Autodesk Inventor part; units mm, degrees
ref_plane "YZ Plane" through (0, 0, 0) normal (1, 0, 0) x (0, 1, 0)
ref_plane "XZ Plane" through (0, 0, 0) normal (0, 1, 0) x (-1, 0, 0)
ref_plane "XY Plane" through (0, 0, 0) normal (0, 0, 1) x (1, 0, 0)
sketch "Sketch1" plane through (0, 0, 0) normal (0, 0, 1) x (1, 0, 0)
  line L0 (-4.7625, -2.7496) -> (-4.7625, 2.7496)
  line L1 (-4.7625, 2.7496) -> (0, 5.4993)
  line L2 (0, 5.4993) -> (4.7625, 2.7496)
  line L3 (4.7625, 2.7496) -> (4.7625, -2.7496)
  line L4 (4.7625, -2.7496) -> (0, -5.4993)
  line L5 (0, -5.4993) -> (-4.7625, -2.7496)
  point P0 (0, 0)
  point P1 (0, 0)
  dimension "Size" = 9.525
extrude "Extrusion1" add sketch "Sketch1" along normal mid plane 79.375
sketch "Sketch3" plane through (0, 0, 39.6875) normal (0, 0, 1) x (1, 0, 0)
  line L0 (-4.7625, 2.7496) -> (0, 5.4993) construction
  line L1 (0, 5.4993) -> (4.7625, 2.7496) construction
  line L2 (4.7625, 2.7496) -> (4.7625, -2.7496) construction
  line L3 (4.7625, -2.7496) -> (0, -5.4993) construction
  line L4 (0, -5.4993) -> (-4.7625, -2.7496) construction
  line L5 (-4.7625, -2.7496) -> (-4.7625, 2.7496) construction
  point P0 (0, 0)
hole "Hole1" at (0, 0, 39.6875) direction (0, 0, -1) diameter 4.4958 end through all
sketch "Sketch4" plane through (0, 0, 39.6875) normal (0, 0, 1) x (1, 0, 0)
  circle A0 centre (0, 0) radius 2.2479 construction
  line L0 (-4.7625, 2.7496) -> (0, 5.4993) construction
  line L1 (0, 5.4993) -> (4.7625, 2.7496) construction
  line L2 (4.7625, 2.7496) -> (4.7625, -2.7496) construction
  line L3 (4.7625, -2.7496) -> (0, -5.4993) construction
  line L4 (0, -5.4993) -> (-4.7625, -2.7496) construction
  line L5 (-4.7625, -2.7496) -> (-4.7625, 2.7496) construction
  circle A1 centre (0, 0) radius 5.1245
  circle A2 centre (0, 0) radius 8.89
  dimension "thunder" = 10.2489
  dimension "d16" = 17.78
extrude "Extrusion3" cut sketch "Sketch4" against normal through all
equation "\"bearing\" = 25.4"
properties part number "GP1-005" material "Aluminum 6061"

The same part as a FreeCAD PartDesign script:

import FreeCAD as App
import Part
import Sketcher
Q = App.Units.Quantity

doc = App.newDocument("Part")
body = doc.addObject("PartDesign::Body", "Body")

sketch1 = body.newObject("Sketcher::SketchObject", "Sketch")
sketch1.AttachmentSupport = (doc.getObject("XY_Plane"), [""])
sketch1.MapMode = "FlatFace"
sketch1.addGeometry(Part.LineSegment(App.Vector(-4.7625, 2.7496, 0), App.Vector(-4.7625, -2.7496, 0)), False)
sketch1.addGeometry(Part.LineSegment(App.Vector(-4.7625, -2.7496, 0), App.Vector(0, -5.4993, 0)), False)
sketch1.addGeometry(Part.LineSegment(App.Vector(0, -5.4993, 0), App.Vector(4.7625, -2.7496, 0)), False)
sketch1.addGeometry(Part.LineSegment(App.Vector(4.7625, -2.7496, 0), App.Vector(4.7625, 2.7496, 0)), False)
sketch1.addGeometry(Part.LineSegment(App.Vector(4.7625, 2.7496, 0), App.Vector(0, 5.4993, 0)), False)
sketch1.addGeometry(Part.LineSegment(App.Vector(0, 5.4993, 0), App.Vector(-4.7625, 2.7496, 0)), False)
sketch1.addConstraint(Sketcher.Constraint("Coincident", 0, 2, 1, 1))
sketch1.addConstraint(Sketcher.Constraint("Coincident", 1, 2, 2, 1))
sketch1.addConstraint(Sketcher.Constraint("Coincident", 2, 2, 3, 1))
sketch1.addConstraint(Sketcher.Constraint("Coincident", 3, 2, 4, 1))
sketch1.addConstraint(Sketcher.Constraint("Coincident", 4, 2, 5, 1))
sketch1.addConstraint(Sketcher.Constraint("Coincident", 5, 2, 0, 1))
sketch1.addConstraint(Sketcher.Constraint("Vertical", 0))
sketch1.addConstraint(Sketcher.Constraint("Vertical", 3))
sketch1.addConstraint(Sketcher.Constraint("Symmetric", 0, 2, 3, 2, -1, 1))
sketch1.addConstraint(Sketcher.Constraint("Symmetric", 1, 2, 4, 2, -1, 1))
sketch1.addConstraint(Sketcher.Constraint("PointOnObject", 1, 2, -2))
sketch1.addConstraint(Sketcher.Constraint("Parallel", 2, 5))
sketch1.addConstraint(Sketcher.Constraint("Horizontal", 0, 2, 2, 2))
sketch1.addConstraint(Sketcher.Constraint("Angle", 1, Q("-30.0006 deg")))
sketch1.addConstraint(Sketcher.Constraint("DistanceX", 0, 2, 2, 2, Q("0.375 in")))
sketch1.addConstraint(Sketcher.Constraint("DistanceY", 0, 2, 0, 1, Q("0.2165 in")))
pad1 = body.newObject("PartDesign::Pad", "Pad")
pad1.Profile = sketch1
pad1.Length = Q("3.125 in")
pad1.Midplane = True

sketch2 = body.newObject("Sketcher::SketchObject", "Sketch001")
sketch2.AttachmentSupport = (doc.getObject("XY_Plane"), [""])
sketch2.MapMode = "FlatFace"
sketch2.AttachmentOffset = App.Placement(App.Vector(0, 0, 1.5625 * 25.4), App.Rotation())
sketch2.addGeometry(Part.Circle(App.Vector(0, 0, 0), App.Vector(0, 0, 1), 2.2479), False)
sketch2.addConstraint(Sketcher.Constraint("Coincident", 0, 3, -1, 1))
sketch2.addConstraint(Sketcher.Constraint("Diameter", 0, Q("0.177 in")))
doc.recompute()
hole = body.newObject("PartDesign::Hole", "Hole")
hole.Profile = sketch2
hole.ThreadType = "None"
hole.Diameter = Q("0.177 in")
hole.DepthType = "ThroughAll"

sketch3 = body.newObject("Sketcher::SketchObject", "Sketch002")
sketch3.AttachmentSupport = (doc.getObject("XY_Plane"), [""])
sketch3.MapMode = "FlatFace"
sketch3.AttachmentOffset = App.Placement(App.Vector(0, 0, 1.5625 * 25.4), App.Rotation())
sketch3.addGeometry(Part.Circle(App.Vector(0, 0, 0), App.Vector(0, 0, 1), 8.89), False)
sketch3.addGeometry(Part.Circle(App.Vector(0, 0, 0), App.Vector(0, 0, 1), 5.1245), False)
sketch3.addConstraint(Sketcher.Constraint("Coincident", 0, 3, -1, 1))
sketch3.addConstraint(Sketcher.Constraint("Coincident", 1, 3, -1, 1))
sketch3.addConstraint(Sketcher.Constraint("Diameter", 0, Q("0.7 in")))
sketch3.addConstraint(Sketcher.Constraint("Diameter", 1, Q("0.4035 in")))
pocket1 = body.newObject("PartDesign::Pocket", "Pocket")
pocket1.Profile = sketch3
pocket1.Type = "ThroughAll"

doc.recompute()
